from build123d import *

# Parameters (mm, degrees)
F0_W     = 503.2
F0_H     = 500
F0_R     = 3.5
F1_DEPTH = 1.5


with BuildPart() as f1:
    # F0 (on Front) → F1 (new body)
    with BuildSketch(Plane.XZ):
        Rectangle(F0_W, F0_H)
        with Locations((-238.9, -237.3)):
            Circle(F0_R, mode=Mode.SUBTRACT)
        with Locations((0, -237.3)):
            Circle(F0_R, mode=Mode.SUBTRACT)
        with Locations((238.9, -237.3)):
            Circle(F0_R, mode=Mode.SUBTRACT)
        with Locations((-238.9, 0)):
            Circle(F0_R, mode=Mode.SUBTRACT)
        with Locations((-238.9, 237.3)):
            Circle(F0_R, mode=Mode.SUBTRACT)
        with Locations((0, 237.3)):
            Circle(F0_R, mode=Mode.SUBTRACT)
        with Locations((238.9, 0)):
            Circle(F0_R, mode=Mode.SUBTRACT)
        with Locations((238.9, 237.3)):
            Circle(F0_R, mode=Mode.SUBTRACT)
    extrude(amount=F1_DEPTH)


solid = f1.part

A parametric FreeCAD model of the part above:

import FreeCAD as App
import Part
import Sketcher
Q = App.Units.Quantity

doc = App.newDocument("Part")
body = doc.addObject("PartDesign::Body", "Body")

sketch1 = doc.addObject("Sketcher::SketchObject", "Sketch")
body.addObject(sketch1)
sketch1.AttachmentSupport = (doc.XZ_Plane, [""])
sketch1.MapMode = "FlatFace"
sketch1.addGeometry([
    Part.LineSegment(App.Vector(-251.6, 250, 0), App.Vector(-251.6, -250, 0)),
    Part.LineSegment(App.Vector(-251.6, -250, 0), App.Vector(251.6, -250, 0)),
    Part.LineSegment(App.Vector(251.6, -250, 0), App.Vector(251.6, 250, 0)),
    Part.LineSegment(App.Vector(251.6, 250, 0), App.Vector(-251.6, 250, 0)),
    Part.Circle(App.Vector(-238.9, -237.3, 0), App.Vector(0, 0, 1), 3.5),
    Part.Circle(App.Vector(0, -237.3, 0), App.Vector(0, 0, 1), 3.5),
    Part.Circle(App.Vector(-238.9, 0, 0), App.Vector(0, 0, 1), 3.5),
    Part.Circle(App.Vector(238.9, -237.3, 0), App.Vector(0, 0, 1), 3.5),
    Part.Circle(App.Vector(238.9, 0, 0), App.Vector(0, 0, 1), 3.5),
    Part.Circle(App.Vector(-238.9, 237.3, 0), App.Vector(0, 0, 1), 3.5),
    Part.Circle(App.Vector(0, 237.3, 0), App.Vector(0, 0, 1), 3.5),
    Part.Circle(App.Vector(238.9, 237.3, 0), App.Vector(0, 0, 1), 3.5),
], False)
sketch1.addConstraint([
    Sketcher.Constraint("Coincident", 0, 2, 1, 1),
    Sketcher.Constraint("Coincident", 1, 2, 2, 1),
    Sketcher.Constraint("Coincident", 2, 2, 3, 1),
    Sketcher.Constraint("Coincident", 3, 2, 0, 1),
    Sketcher.Constraint("Vertical", 0),
    Sketcher.Constraint("Horizontal", 1),
    Sketcher.Constraint("Vertical", 2),
    Sketcher.Constraint("Horizontal", 3),
    Sketcher.Constraint("Equal", 4, 5),
    Sketcher.Constraint("Equal", 5, 6),
    Sketcher.Constraint("Equal", 6, 7),
    Sketcher.Constraint("Equal", 7, 8),
    Sketcher.Constraint("Equal", 8, 9),
    Sketcher.Constraint("Equal", 9, 10),
    Sketcher.Constraint("Equal", 10, 11),
    Sketcher.Constraint("Symmetric", 6, 3, 8, 3, -1, 1),
    Sketcher.Constraint("Symmetric", 7, 3, 9, 3, -1, 1),
    Sketcher.Constraint("Symmetric", 5, 3, 10, 3, -1, 1),
    Sketcher.Constraint("Symmetric", 4, 3, 11, 3, -1, 1),
    Sketcher.Constraint("Symmetric", 0, 2, 2, 2, -1, 1),
    Sketcher.Constraint("Symmetric", 4, 3, 7, 3, -2),
    Sketcher.Constraint("PointOnObject", 5, 3, -2),
    Sketcher.Constraint("PointOnObject", 6, 3, -1),
    Sketcher.Constraint("Horizontal", 4, 3, 5, 3),
    Sketcher.Constraint("Vertical", 4, 3, 6, 3),
    Sketcher.Constraint("Diameter", 4, Q("7 mm")),
    Sketcher.Constraint("DistanceY", 0, 2, 0, 1, Q("500 mm")),
    Sketcher.Constraint("DistanceX", 1, 1, 1, 2, Q("503.2 mm")),
    Sketcher.Constraint("DistanceX", 4, 3, -1, 1, Q("238.9 mm")),
    Sketcher.Constraint("DistanceY", 4, 3, -1, 1, Q("237.3 mm")),
])
pad1 = doc.addObject("PartDesign::Pad", "Pad")
body.addObject(pad1)
pad1.Profile = sketch1
pad1.Length = 1.5

doc.recompute()
